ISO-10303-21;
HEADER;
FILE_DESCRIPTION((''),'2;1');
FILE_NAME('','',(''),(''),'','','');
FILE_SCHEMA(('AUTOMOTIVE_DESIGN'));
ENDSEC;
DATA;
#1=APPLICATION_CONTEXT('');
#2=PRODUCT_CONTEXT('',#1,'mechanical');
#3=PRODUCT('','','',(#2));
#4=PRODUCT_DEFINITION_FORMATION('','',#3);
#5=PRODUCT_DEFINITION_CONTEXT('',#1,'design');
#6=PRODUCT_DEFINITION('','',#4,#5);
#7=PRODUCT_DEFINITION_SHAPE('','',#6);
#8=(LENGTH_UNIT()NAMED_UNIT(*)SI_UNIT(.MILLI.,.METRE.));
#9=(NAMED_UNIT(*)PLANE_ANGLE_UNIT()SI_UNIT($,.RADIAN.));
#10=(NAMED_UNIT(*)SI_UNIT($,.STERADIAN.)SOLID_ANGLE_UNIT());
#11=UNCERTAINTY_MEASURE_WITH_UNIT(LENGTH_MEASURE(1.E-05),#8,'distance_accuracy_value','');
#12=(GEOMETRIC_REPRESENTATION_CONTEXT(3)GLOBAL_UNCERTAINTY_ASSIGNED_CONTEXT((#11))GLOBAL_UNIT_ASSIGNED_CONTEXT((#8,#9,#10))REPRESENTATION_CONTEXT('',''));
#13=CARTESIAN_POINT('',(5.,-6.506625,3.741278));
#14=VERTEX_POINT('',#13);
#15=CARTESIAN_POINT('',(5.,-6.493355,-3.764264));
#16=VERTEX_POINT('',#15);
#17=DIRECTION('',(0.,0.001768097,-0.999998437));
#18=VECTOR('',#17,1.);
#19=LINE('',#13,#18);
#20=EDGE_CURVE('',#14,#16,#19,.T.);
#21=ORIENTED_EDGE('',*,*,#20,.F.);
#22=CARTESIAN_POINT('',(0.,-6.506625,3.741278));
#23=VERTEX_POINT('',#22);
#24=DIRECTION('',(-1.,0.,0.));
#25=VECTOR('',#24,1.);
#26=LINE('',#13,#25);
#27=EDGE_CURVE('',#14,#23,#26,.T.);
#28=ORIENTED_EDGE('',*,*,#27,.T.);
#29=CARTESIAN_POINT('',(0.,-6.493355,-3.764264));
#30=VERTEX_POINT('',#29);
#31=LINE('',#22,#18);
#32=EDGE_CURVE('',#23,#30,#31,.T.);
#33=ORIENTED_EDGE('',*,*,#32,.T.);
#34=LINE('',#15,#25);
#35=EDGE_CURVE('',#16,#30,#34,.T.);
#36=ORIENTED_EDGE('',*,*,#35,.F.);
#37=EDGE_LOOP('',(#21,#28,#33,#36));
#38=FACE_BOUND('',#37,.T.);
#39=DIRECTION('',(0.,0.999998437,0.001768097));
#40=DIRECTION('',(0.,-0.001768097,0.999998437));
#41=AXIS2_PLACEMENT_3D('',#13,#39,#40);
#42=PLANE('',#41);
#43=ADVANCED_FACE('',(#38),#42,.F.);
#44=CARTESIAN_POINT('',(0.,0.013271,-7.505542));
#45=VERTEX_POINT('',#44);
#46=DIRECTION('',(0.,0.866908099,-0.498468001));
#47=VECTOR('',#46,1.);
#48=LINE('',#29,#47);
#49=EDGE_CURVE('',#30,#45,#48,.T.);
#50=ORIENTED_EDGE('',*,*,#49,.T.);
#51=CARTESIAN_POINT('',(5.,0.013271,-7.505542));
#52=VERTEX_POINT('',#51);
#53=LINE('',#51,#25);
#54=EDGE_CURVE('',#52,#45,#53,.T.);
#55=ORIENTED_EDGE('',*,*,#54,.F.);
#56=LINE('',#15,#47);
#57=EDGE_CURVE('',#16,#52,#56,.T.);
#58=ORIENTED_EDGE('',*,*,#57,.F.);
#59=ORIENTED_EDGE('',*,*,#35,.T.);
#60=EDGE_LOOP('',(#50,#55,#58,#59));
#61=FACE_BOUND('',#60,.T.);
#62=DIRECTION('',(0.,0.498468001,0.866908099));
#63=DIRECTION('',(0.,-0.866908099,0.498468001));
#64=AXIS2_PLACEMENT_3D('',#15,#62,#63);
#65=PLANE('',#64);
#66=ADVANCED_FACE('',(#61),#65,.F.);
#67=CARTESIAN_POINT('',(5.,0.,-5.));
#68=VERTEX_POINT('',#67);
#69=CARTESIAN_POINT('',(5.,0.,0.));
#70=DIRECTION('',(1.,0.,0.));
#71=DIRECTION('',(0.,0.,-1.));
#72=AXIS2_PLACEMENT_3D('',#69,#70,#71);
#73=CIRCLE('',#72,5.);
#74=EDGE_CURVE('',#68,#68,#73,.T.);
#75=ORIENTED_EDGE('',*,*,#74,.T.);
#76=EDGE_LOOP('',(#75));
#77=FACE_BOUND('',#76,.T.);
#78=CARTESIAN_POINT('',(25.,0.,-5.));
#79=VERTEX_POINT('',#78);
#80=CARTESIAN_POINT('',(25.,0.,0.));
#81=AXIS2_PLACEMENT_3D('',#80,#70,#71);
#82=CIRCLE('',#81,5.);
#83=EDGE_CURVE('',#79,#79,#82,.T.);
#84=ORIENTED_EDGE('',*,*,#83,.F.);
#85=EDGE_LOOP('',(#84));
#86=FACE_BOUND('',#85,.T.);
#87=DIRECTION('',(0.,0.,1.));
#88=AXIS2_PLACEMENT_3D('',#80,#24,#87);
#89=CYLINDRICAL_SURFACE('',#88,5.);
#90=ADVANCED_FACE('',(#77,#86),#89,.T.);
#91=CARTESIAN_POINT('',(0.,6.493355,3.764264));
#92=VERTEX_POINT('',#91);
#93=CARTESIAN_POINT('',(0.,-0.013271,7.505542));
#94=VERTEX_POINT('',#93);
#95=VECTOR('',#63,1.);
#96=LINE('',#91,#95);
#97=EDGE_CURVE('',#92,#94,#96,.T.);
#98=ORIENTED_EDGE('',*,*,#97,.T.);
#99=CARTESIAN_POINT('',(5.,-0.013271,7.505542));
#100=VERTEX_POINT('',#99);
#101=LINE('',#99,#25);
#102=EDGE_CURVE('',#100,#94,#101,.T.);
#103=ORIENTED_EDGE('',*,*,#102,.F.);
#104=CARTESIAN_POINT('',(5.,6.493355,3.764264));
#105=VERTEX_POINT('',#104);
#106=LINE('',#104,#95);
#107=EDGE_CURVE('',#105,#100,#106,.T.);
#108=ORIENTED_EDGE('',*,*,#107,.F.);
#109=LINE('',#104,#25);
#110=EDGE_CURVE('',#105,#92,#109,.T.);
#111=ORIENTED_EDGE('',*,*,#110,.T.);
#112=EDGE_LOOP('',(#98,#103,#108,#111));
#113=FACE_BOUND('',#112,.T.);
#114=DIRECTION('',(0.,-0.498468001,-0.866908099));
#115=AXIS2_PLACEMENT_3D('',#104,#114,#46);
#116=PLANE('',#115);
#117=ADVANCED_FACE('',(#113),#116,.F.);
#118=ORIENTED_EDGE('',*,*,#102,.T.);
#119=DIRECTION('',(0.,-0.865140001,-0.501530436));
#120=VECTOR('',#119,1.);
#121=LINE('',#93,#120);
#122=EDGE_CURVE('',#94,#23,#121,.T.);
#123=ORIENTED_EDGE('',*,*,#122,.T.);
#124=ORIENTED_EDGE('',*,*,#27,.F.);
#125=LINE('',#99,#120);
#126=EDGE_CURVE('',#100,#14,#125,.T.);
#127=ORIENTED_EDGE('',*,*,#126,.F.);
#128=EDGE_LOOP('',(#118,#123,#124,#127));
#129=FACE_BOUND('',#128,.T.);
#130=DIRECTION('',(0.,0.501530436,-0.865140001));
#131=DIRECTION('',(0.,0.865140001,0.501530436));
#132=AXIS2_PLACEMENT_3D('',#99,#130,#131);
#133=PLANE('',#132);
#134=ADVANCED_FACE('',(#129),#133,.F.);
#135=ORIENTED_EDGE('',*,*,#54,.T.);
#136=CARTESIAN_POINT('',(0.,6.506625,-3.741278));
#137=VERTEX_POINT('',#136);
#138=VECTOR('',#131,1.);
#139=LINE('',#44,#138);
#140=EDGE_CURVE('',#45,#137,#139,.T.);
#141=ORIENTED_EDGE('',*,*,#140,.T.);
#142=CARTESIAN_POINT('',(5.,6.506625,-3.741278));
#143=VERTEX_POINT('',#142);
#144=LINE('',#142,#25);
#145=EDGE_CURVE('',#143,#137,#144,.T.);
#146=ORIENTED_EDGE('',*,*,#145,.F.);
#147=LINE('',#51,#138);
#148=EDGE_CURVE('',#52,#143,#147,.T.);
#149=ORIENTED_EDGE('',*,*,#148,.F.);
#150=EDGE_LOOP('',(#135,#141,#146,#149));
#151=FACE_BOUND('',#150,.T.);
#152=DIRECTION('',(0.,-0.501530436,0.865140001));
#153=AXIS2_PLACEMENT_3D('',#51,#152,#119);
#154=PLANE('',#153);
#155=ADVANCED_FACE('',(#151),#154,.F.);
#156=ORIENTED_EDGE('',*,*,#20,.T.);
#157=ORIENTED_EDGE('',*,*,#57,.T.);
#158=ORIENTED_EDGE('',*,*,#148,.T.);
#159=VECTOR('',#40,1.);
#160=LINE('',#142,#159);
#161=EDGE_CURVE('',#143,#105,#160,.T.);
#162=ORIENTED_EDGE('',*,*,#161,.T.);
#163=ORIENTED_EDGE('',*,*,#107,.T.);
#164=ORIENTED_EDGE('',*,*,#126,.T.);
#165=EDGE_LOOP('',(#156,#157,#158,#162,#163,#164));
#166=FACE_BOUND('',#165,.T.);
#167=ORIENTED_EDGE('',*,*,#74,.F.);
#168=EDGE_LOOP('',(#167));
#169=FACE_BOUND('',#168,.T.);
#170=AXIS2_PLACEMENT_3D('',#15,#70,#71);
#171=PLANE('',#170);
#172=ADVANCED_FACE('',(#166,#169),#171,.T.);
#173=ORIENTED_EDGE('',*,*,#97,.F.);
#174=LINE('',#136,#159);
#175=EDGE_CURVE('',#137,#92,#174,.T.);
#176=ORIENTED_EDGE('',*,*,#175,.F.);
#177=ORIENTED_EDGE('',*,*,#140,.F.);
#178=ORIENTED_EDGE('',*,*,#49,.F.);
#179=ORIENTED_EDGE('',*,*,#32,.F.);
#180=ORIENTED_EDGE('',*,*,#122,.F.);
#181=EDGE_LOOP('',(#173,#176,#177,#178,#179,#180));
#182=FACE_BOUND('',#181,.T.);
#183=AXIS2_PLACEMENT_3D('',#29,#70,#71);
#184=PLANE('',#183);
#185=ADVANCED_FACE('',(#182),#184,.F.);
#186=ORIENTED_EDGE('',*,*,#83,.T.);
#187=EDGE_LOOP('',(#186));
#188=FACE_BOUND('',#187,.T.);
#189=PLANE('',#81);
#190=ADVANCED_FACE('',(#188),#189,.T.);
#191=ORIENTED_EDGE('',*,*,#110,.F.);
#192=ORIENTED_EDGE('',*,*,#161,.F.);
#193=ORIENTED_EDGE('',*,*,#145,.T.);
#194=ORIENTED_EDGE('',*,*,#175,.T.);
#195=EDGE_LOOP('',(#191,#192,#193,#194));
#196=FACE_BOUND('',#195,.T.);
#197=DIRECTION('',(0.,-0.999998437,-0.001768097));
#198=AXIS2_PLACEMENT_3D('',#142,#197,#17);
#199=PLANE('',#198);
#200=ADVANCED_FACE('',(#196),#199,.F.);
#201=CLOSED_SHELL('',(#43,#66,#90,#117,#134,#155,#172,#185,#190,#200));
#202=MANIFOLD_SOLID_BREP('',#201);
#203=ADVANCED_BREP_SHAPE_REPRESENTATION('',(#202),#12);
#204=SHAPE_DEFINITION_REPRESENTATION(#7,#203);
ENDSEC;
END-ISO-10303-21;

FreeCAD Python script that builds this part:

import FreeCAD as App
import Part
import Sketcher
Q = App.Units.Quantity


def add_polygon(sketch, points):
    """Adds a closed chain of lines whose ends are joined by coincident constraints."""
    first, n = sketch.GeometryCount, len(points)
    for a, b in zip(points, points[1:] + points[:1]):
        sketch.addGeometry(Part.LineSegment(App.Vector(*a, 0), App.Vector(*b, 0)), False)
    for i in range(n):
        sketch.addConstraint(Sketcher.Constraint("Coincident", first + i, 2, first + (i + 1) % n, 1))

doc = App.newDocument("Part")
body = doc.addObject("PartDesign::Body", "Body")

# Sketch on YZ plane
sketch1 = body.newObject("Sketcher::SketchObject", "Sketch")
sketch1.AttachmentSupport = (doc.getObject("YZ_Plane"), [""])
sketch1.MapMode = "FlatFace"
add_polygon(sketch1, [(-6.493355, -3.764264), (0.013271, -7.505542), (6.506625, -3.741278), (6.493355, 3.764264), (-0.013271, 7.505542), (-6.506625, 3.741278)])  # lines 0-5
sketch1.addConstraint(Sketcher.Constraint("Symmetric", 0, 2, 3, 2, -1, 1))
sketch1.addConstraint(Sketcher.Constraint("Symmetric", 1, 2, 4, 2, -1, 1))
sketch1.addConstraint(Sketcher.Constraint("Symmetric", 2, 2, 5, 2, -1, 1))
sketch1.addConstraint(Sketcher.Constraint("Equal", 0, 1))
sketch1.addConstraint(Sketcher.Constraint("Equal", 1, 2))
sketch1.addConstraint(Sketcher.Constraint("DistanceX", -1, 1, 0, 2, Q("0.013271 mm")))
sketch1.addConstraint(Sketcher.Constraint("DistanceY", 0, 2, -1, 1, Q("7.505542 mm")))
sketch1.addConstraint(Sketcher.Constraint("DistanceY", 1, 2, -1, 1, Q("3.741278 mm")))
sketch1.addConstraint(Sketcher.Constraint("DistanceX", 2, 2, 1, 2, Q("0.013271 mm")))
pad1 = body.newObject("PartDesign::Pad", "Pad")
pad1.Profile = sketch1
pad1.Length = 5

# Sketch on YZ plane
sketch2 = body.newObject("Sketcher::SketchObject", "Sketch001")
sketch2.AttachmentSupport = (doc.getObject("YZ_Plane"), [""])
sketch2.MapMode = "FlatFace"
sketch2.AttachmentOffset = App.Placement(App.Vector(0, 0, 5), App.Rotation())
sketch2.addGeometry(Part.Circle(App.Vector(0, 0, 0), App.Vector(0, 0, 1), 5), False)
sketch2.addConstraint(Sketcher.Constraint("Coincident", 0, 3, -1, 1))
sketch2.addConstraint(Sketcher.Constraint("Diameter", 0, Q("10 mm")))
pad2 = body.newObject("PartDesign::Pad", "Pad001")
pad2.Profile = sketch2
pad2.Length = 20

doc.recompute()
